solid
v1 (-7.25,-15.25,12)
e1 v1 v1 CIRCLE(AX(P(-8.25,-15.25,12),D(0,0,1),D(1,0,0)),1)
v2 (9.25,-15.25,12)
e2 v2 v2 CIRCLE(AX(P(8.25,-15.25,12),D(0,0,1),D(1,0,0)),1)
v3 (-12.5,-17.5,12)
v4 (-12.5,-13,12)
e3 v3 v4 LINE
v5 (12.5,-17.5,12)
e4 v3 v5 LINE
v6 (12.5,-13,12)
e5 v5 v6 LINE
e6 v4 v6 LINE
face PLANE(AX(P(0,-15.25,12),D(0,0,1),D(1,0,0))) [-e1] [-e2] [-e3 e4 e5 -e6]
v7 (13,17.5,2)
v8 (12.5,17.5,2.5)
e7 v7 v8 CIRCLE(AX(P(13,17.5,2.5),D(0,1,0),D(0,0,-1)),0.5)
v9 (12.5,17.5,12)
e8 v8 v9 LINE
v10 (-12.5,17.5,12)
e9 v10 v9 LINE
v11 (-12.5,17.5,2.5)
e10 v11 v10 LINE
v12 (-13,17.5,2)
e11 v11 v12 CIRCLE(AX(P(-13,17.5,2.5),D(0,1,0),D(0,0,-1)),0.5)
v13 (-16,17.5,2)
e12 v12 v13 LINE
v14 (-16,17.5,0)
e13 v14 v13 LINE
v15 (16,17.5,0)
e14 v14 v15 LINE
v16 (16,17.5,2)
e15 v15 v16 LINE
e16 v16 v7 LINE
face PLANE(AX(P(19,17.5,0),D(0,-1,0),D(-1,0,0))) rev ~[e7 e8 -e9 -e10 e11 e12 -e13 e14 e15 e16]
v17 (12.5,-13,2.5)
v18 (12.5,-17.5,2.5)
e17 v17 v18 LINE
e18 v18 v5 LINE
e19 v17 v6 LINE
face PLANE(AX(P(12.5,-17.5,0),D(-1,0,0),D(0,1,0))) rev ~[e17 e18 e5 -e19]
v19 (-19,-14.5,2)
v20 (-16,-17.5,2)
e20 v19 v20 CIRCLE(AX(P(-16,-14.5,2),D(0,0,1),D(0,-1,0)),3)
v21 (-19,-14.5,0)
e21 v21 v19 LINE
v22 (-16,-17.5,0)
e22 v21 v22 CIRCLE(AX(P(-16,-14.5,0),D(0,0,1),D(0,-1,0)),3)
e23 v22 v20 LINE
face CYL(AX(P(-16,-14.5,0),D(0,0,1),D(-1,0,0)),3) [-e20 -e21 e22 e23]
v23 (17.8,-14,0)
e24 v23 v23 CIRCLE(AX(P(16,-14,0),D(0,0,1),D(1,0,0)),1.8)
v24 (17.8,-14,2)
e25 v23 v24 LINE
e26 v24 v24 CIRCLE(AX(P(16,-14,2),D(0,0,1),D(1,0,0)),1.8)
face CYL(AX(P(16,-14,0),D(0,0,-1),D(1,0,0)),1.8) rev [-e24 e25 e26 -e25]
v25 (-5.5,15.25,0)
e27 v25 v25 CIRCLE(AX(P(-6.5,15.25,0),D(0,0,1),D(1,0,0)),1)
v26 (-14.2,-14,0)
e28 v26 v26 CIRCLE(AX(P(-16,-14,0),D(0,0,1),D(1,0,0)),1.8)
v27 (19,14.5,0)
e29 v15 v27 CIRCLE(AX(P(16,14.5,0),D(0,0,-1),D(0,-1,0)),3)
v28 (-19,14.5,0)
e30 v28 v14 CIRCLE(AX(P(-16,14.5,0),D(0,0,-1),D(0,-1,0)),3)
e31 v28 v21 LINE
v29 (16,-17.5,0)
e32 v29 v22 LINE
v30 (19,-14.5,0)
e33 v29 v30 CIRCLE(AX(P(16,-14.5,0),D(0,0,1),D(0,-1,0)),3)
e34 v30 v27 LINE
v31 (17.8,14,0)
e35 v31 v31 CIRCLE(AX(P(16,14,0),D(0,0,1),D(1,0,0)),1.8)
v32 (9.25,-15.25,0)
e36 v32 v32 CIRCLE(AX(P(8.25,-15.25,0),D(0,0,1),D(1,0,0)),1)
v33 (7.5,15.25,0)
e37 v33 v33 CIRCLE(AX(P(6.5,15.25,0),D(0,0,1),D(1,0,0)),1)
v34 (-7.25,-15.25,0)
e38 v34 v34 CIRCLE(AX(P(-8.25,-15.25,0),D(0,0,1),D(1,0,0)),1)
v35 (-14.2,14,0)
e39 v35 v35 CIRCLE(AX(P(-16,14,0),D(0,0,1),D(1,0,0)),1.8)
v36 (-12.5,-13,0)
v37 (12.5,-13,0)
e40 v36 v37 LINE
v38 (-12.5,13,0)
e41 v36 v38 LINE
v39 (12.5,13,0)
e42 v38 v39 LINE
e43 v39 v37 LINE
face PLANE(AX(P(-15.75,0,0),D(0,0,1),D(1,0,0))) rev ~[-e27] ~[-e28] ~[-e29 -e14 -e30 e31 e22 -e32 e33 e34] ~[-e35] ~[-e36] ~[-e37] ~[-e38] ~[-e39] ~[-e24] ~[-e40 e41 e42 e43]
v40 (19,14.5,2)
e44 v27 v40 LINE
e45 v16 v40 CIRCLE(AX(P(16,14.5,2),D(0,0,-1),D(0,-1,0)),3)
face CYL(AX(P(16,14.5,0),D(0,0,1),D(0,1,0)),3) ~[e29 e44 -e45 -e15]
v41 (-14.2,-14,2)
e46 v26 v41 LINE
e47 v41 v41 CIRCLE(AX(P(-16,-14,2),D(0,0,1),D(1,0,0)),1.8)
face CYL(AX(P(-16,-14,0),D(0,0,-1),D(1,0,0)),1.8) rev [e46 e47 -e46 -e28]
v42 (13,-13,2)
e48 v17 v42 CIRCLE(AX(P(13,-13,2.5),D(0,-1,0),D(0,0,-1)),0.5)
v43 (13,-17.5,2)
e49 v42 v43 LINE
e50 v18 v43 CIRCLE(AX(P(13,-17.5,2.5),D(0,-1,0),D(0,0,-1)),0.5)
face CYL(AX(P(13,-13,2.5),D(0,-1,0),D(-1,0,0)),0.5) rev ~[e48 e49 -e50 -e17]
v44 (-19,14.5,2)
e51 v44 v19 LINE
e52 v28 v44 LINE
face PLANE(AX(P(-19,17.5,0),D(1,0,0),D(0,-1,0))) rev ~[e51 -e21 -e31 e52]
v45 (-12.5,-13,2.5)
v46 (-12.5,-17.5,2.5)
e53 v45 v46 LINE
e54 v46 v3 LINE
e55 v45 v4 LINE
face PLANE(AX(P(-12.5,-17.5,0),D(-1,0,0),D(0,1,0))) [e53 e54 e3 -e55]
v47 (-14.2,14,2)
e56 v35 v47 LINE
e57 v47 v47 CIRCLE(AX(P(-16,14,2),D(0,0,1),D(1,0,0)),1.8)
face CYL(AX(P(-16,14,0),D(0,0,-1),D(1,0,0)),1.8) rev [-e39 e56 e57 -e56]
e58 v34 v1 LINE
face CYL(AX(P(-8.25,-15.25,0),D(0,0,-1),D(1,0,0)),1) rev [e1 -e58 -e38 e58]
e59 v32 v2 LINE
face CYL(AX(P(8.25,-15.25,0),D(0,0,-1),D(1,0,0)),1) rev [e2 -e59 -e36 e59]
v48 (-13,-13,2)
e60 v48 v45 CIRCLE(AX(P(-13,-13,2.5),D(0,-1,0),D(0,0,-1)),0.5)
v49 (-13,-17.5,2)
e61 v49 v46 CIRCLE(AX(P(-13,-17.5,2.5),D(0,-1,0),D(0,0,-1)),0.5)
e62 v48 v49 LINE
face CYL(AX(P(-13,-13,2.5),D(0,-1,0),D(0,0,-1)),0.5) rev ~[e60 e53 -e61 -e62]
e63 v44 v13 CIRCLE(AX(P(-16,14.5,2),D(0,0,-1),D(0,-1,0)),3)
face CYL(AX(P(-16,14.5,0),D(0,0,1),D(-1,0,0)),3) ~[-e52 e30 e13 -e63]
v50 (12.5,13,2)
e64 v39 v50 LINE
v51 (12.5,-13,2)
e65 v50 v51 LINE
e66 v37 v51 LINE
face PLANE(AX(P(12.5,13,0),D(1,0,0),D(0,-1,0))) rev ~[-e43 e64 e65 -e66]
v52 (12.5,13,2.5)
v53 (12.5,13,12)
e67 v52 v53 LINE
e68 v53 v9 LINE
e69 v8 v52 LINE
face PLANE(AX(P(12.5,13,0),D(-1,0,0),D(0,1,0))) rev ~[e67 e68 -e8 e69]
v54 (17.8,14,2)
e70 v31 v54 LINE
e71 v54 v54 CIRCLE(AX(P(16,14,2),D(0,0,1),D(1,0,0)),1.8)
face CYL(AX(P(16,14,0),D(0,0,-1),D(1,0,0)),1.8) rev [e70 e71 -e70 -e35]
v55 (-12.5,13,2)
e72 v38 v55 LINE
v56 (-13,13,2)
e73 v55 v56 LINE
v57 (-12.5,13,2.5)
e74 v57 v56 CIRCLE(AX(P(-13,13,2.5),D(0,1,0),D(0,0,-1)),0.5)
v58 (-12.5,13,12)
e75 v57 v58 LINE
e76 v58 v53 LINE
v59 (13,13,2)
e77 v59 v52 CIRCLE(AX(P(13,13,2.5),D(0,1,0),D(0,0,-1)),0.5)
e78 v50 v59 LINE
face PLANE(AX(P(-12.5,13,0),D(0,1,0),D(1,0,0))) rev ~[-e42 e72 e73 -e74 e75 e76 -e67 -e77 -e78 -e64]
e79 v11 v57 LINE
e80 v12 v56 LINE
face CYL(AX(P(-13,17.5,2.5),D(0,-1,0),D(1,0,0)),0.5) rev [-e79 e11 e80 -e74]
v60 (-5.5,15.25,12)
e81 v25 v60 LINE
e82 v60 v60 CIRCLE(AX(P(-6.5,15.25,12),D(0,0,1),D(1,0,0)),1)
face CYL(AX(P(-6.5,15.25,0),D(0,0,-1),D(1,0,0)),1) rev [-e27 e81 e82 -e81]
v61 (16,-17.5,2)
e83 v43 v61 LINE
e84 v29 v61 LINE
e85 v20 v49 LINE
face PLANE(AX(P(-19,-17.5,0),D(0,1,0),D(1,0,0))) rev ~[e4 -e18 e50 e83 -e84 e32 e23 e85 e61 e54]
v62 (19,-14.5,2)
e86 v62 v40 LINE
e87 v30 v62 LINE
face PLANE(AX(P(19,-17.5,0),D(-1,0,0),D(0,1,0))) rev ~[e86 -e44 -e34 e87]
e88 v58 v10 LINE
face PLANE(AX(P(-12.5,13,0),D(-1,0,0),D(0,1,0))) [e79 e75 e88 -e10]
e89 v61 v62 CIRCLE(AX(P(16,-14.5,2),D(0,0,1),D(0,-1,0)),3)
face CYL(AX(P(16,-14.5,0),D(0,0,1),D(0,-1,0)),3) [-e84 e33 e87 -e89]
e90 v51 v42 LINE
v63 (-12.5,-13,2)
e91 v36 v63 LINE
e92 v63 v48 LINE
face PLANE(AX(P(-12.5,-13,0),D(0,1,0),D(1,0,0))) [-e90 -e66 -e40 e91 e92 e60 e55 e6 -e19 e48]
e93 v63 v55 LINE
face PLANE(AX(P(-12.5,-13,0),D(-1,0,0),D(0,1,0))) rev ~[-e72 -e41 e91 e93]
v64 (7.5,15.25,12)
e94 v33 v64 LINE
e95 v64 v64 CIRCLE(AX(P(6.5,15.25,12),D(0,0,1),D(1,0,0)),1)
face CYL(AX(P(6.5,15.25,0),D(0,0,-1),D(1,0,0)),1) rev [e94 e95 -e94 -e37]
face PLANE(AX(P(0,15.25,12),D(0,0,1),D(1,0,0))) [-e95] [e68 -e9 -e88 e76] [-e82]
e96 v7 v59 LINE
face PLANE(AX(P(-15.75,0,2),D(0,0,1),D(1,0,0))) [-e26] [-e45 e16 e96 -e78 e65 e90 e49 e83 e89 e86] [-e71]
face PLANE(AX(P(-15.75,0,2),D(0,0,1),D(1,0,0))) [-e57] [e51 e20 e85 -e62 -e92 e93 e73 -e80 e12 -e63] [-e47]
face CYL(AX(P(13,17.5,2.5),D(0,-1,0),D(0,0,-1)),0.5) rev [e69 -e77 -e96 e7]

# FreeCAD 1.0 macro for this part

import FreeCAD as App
import Part
import Sketcher
Q = App.Units.Quantity


def edges_at(feature, points):
    """Names of the edges that pass closest to the given points."""
    edges = feature.Shape.Edges
    near = lambda p: min(range(len(edges)), key=lambda i: edges[i].distToShape(Part.Vertex(*p))[0])
    return sorted({f"Edge{near(p) + 1}" for p in points})

doc = App.newDocument("Part")
body = doc.addObject("PartDesign::Body", "Body")

# Sketch on XY plane
sketch1 = doc.addObject("Sketcher::SketchObject", "Sketch")
body.addObject(sketch1)
sketch1.AttachmentSupport = (doc.XY_Plane, [""])
sketch1.MapMode = "FlatFace"
sketch1.addGeometry([
    Part.LineSegment(App.Vector(-19, 17.5, 0), App.Vector(-19, -17.5, 0)),  # 0
    Part.LineSegment(App.Vector(-19, -17.5, 0), App.Vector(19, -17.5, 0)),  # 1
    Part.LineSegment(App.Vector(19, -17.5, 0), App.Vector(19, 17.5, 0)),  # 2
    Part.LineSegment(App.Vector(19, 17.5, 0), App.Vector(-19, 17.5, 0)),  # 3
    Part.Circle(App.Vector(-16, -14, 0), App.Vector(0, 0, 1), 1.8),  # 4
    Part.Circle(App.Vector(-8.2, -15.2, 0), App.Vector(0, 0, 1), 1),  # 5
    Part.Circle(App.Vector(8.2, -15.2, 0), App.Vector(0, 0, 1), 1),  # 6
    Part.Circle(App.Vector(16, -14, 0), App.Vector(0, 0, 1), 1.8),  # 7
    Part.Circle(App.Vector(-16, 14, 0), App.Vector(0, 0, 1), 1.8),  # 8
    Part.Circle(App.Vector(-6.5, 15.2, 0), App.Vector(0, 0, 1), 1),  # 9
    Part.LineSegment(App.Vector(-12.5, -13, 0), App.Vector(-12.5, 13, 0)),  # 10
    Part.LineSegment(App.Vector(-12.5, 13, 0), App.Vector(12.5, 13, 0)),  # 11
    Part.LineSegment(App.Vector(12.5, 13, 0), App.Vector(12.5, -13, 0)),  # 12
    Part.LineSegment(App.Vector(12.5, -13, 0), App.Vector(-12.5, -13, 0)),  # 13
    Part.Circle(App.Vector(6.5, 15.2, 0), App.Vector(0, 0, 1), 1),  # 14
    Part.Circle(App.Vector(16, 14, 0), App.Vector(0, 0, 1), 1.8),  # 15
], False)
sketch1.addConstraint([
    Sketcher.Constraint("Coincident", 0, 2, 1, 1),
    Sketcher.Constraint("Coincident", 1, 2, 2, 1),
    Sketcher.Constraint("Coincident", 2, 2, 3, 1),
    Sketcher.Constraint("Coincident", 3, 2, 0, 1),
    Sketcher.Constraint("Coincident", 10, 2, 11, 1),
    Sketcher.Constraint("Coincident", 11, 2, 12, 1),
    Sketcher.Constraint("Coincident", 12, 2, 13, 1),
    Sketcher.Constraint("Coincident", 13, 2, 10, 1),
    Sketcher.Constraint("Vertical", 0),
    Sketcher.Constraint("Horizontal", 1),
    Sketcher.Constraint("Vertical", 2),
    Sketcher.Constraint("Horizontal", 3),
    Sketcher.Constraint("Vertical", 10),
    Sketcher.Constraint("Horizontal", 11),
    Sketcher.Constraint("Vertical", 12),
    Sketcher.Constraint("Horizontal", 13),
    Sketcher.Constraint("Equal", 5, 6),
    Sketcher.Constraint("Equal", 4, 7),
    Sketcher.Constraint("Equal", 7, 8),
    Sketcher.Constraint("Equal", 6, 9),
    Sketcher.Constraint("Equal", 9, 14),
    Sketcher.Constraint("Equal", 8, 15),
    Sketcher.Constraint("Symmetric", 7, 3, 8, 3, -1, 1),
    Sketcher.Constraint("Symmetric", 4, 3, 15, 3, -1, 1),
    Sketcher.Constraint("Symmetric", 0, 2, 2, 2, -1, 1),
    Sketcher.Constraint("Symmetric", 10, 2, 12, 2, -1, 1),
    Sketcher.Constraint("Symmetric", 5, 3, 6, 3, -2),
    Sketcher.Constraint("Symmetric", 4, 3, 7, 3, -2),
    Sketcher.Constraint("Symmetric", 9, 3, 14, 3, -2),
    Sketcher.Constraint("Diameter", 5, Q("2 mm")),
    Sketcher.Constraint("Diameter", 4, Q("3.6 mm")),
    Sketcher.Constraint("DistanceX", 1, 1, 1, 2, Q("38 mm")),
    Sketcher.Constraint("DistanceX", 11, 1, 11, 2, Q("25 mm")),
    Sketcher.Constraint("DistanceY", 0, 2, 0, 1, Q("35 mm")),
    Sketcher.Constraint("DistanceY", 10, 1, 10, 2, Q("26 mm")),
    Sketcher.Constraint("DistanceX", 4, 3, -1, 1, Q("16 mm")),
    Sketcher.Constraint("DistanceY", 4, 3, -1, 1, Q("14 mm")),
    Sketcher.Constraint("DistanceX", 9, 3, 14, 3, Q("13 mm")),
    Sketcher.Constraint("DistanceX", 5, 3, 6, 3, Q("16.5 mm")),
    Sketcher.Constraint("DistanceY", 5, 3, 9, 3, Q("30.5 mm")),
    Sketcher.Constraint("DistanceY", 5, 3, -1, 1, Q("15.25 mm")),
])
pad1 = doc.addObject("PartDesign::Pad", "Pad")
body.addObject(pad1)
pad1.Profile = sketch1
pad1.Length = 2
doc.recompute()

fillet = doc.addObject("PartDesign::Fillet", "Fillet")
body.addObject(fillet)
fillet.Base = (pad1, edges_at(pad1, [
    (-19, 17.5, 1),
    (19, 17.5, 1),
    (19, -17.5, 1),
    (-19, -17.5, 1),
]))
fillet.Radius = 3

# Sketch on XY plane
sketch2 = doc.addObject("Sketcher::SketchObject", "Sketch001")
body.addObject(sketch2)
sketch2.AttachmentSupport = (doc.XY_Plane, [""])
sketch2.MapMode = "FlatFace"
sketch2.addGeometry([
    Part.LineSegment(App.Vector(-12.5, 17.5, 0), App.Vector(-12.5, 13, 0)),  # 0
    Part.LineSegment(App.Vector(-12.5, 13, 0), App.Vector(12.5, 13, 0)),  # 1
    Part.LineSegment(App.Vector(12.5, 13, 0), App.Vector(12.5, 17.5, 0)),  # 2
    Part.LineSegment(App.Vector(12.5, 17.5, 0), App.Vector(-12.5, 17.5, 0)),  # 3
    Part.Circle(App.Vector(-6.5, 15.2, 0), App.Vector(0, 0, 1), 1),  # 4
    Part.Circle(App.Vector(6.5, 15.2, 0), App.Vector(0, 0, 1), 1),  # 5
    Part.LineSegment(App.Vector(-12.5, -13, 0), App.Vector(-12.5, -17.5, 0)),  # 6
    Part.LineSegment(App.Vector(-12.5, -17.5, 0), App.Vector(12.5, -17.5, 0)),  # 7
    Part.LineSegment(App.Vector(12.5, -17.5, 0), App.Vector(12.5, -13, 0)),  # 8
    Part.LineSegment(App.Vector(12.5, -13, 0), App.Vector(-12.5, -13, 0)),  # 9
    Part.Circle(App.Vector(-8.2, -15.2, 0), App.Vector(0, 0, 1), 1),  # 10
    Part.Circle(App.Vector(8.2, -15.2, 0), App.Vector(0, 0, 1), 1),  # 11
], False)
sketch2.addConstraint([
    Sketcher.Constraint("Coincident", 0, 2, 1, 1),
    Sketcher.Constraint("Coincident", 1, 2, 2, 1),
    Sketcher.Constraint("Coincident", 2, 2, 3, 1),
    Sketcher.Constraint("Coincident", 3, 2, 0, 1),
    Sketcher.Constraint("Coincident", 6, 2, 7, 1),
    Sketcher.Constraint("Coincident", 7, 2, 8, 1),
    Sketcher.Constraint("Coincident", 8, 2, 9, 1),
    Sketcher.Constraint("Coincident", 9, 2, 6, 1),
    Sketcher.Constraint("Vertical", 0),
    Sketcher.Constraint("Horizontal", 1),
    Sketcher.Constraint("Vertical", 2),
    Sketcher.Constraint("Horizontal", 3),
    Sketcher.Constraint("Vertical", 6),
    Sketcher.Constraint("Horizontal", 7),
    Sketcher.Constraint("Vertical", 8),
    Sketcher.Constraint("Horizontal", 9),
    Sketcher.Constraint("Equal", 4, 5),
    Sketcher.Constraint("Equal", 5, 10),
    Sketcher.Constraint("Equal", 10, 11),
    Sketcher.Constraint("Symmetric", 2, 2, 6, 2, -1, 1),
    Sketcher.Constraint("Symmetric", 0, 2, 8, 2, -1, 1),
    Sketcher.Constraint("Symmetric", 4, 3, 5, 3, -2),
    Sketcher.Constraint("Symmetric", 10, 3, 11, 3, -2),
    Sketcher.Constraint("Vertical", 3, 2, 6, 2),
    Sketcher.Constraint("Diameter", 4, Q("2 mm")),
    Sketcher.Constraint("DistanceX", 1, 1, 1, 2, Q("25 mm")),
    Sketcher.Constraint("DistanceY", 0, 2, 0, 1, Q("4.5 mm")),
    Sketcher.Constraint("DistanceY", -1, 1, 0, 2, Q("13 mm")),
    Sketcher.Constraint("DistanceX", 4, 3, 5, 3, Q("13 mm")),
    Sketcher.Constraint("DistanceY", 10, 3, 4, 3, Q("30.5 mm")),
    Sketcher.Constraint("DistanceX", 10, 3, 11, 3, Q("16.5 mm")),
    Sketcher.Constraint("DistanceY", -1, 1, 4, 3, Q("15.25 mm")),
])
pad2 = doc.addObject("PartDesign::Pad", "Pad001")
body.addObject(pad2)
pad2.Profile = sketch2
pad2.Length = 12
doc.recompute()

fillet2 = doc.addObject("PartDesign::Fillet", "Fillet001")
body.addObject(fillet2)
fillet2.Base = (pad2, edges_at(pad2, [
    (-12.5, 15.25, 2),
    (-12.5, -15.25, 2),
    (12.5, 15.25, 2),
    (12.5, -15.25, 2),
]))
fillet2.Radius = 0.5

doc.recompute()
